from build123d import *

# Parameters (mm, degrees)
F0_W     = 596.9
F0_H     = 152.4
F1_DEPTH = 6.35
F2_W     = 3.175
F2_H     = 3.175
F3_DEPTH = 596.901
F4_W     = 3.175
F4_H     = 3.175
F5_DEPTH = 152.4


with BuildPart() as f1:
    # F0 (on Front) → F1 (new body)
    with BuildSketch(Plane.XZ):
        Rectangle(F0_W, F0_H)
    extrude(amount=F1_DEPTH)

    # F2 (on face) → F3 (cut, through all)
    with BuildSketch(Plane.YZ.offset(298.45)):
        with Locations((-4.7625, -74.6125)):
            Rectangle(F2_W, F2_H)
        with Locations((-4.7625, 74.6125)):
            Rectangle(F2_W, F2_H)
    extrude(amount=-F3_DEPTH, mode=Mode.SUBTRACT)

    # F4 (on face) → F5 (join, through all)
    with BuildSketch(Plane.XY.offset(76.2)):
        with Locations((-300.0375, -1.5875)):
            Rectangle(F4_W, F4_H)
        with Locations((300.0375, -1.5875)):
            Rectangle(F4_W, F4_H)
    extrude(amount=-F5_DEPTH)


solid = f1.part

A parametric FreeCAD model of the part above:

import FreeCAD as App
import Part
import Sketcher
Q = App.Units.Quantity


def add_polygon(sketch, points):
    """Adds a closed chain of lines whose ends are joined by coincident constraints."""
    first, n = sketch.GeometryCount, len(points)
    for a, b in zip(points, points[1:] + points[:1]):
        sketch.addGeometry(Part.LineSegment(App.Vector(*a, 0), App.Vector(*b, 0)), False)
    for i in range(n):
        sketch.addConstraint(Sketcher.Constraint("Coincident", first + i, 2, first + (i + 1) % n, 1))

doc = App.newDocument("Part")
body = doc.addObject("PartDesign::Body", "Body")

# Sketch on XZ plane
sketch1 = body.newObject("Sketcher::SketchObject", "Sketch")
sketch1.AttachmentSupport = (doc.getObject("XZ_Plane"), [""])
sketch1.MapMode = "FlatFace"
add_polygon(sketch1, [(-298, 76), (-298, -76), (298, -76), (298, 76)])  # lines 0-3
sketch1.addConstraint(Sketcher.Constraint("Vertical", 0))
sketch1.addConstraint(Sketcher.Constraint("Horizontal", 1))
sketch1.addConstraint(Sketcher.Constraint("Vertical", 2))
sketch1.addConstraint(Sketcher.Constraint("Horizontal", 3))
sketch1.addConstraint(Sketcher.Constraint("Symmetric", 0, 2, 2, 2, -1, 1))
sketch1.addConstraint(Sketcher.Constraint("DistanceY", 0, 2, 0, 1, Q("6 in")))
sketch1.addConstraint(Sketcher.Constraint("DistanceX", 1, 1, 1, 2, Q("23.5 in")))
pad1 = body.newObject("PartDesign::Pad", "Pad")
pad1.Profile = sketch1
pad1.Length = Q("0.25 in")

# Sketch on YZ plane
sketch2 = body.newObject("Sketcher::SketchObject", "Sketch001")
sketch2.AttachmentSupport = (doc.getObject("YZ_Plane"), [""])
sketch2.MapMode = "FlatFace"
sketch2.AttachmentOffset = App.Placement(App.Vector(0, 0, 11.75 * 25.4), App.Rotation())
add_polygon(sketch2, [(-6.3, -73), (-6.3, -76.2), (-3.2, -76.2), (-3.2, -73)])  # lines 0-3
add_polygon(sketch2, [(-6.3, 76.2), (-6.3, 73), (-3.2, 73), (-3.2, 76.2)])  # lines 4-7
sketch2.addConstraint(Sketcher.Constraint("Vertical", 0))
sketch2.addConstraint(Sketcher.Constraint("Horizontal", 1))
sketch2.addConstraint(Sketcher.Constraint("Vertical", 2))
sketch2.addConstraint(Sketcher.Constraint("Horizontal", 3))
sketch2.addConstraint(Sketcher.Constraint("Vertical", 4))
sketch2.addConstraint(Sketcher.Constraint("Horizontal", 5))
sketch2.addConstraint(Sketcher.Constraint("Vertical", 6))
sketch2.addConstraint(Sketcher.Constraint("Horizontal", 7))
sketch2.addConstraint(Sketcher.Constraint("Symmetric", 3, 2, 4, 2, -1))
sketch2.addConstraint(Sketcher.Constraint("Symmetric", 1, 2, 6, 2, -1))
sketch2.addConstraint(Sketcher.Constraint("Equal", 7, 0))
sketch2.addConstraint(Sketcher.Constraint("DistanceY", 0, 2, -1, 1, Q("3 in")))
sketch2.addConstraint(Sketcher.Constraint("DistanceX", 1, 1, 1, 2, Q("0.125 in")))
sketch2.addConstraint(Sketcher.Constraint("DistanceX", 0, 2, -1, 1, Q("0.25 in")))
pocket1 = body.newObject("PartDesign::Pocket", "Pocket")
pocket1.Profile = sketch2
pocket1.Type = "ThroughAll"

# Sketch on XY plane
sketch3 = body.newObject("Sketcher::SketchObject", "Sketch002")
sketch3.AttachmentSupport = (doc.getObject("XY_Plane"), [""])
sketch3.MapMode = "FlatFace"
sketch3.AttachmentOffset = App.Placement(App.Vector(0, 0, 3 * 25.4), App.Rotation())
add_polygon(sketch3, [(-301.6, 0), (-301.6, -3.2), (-298.4, -3.2), (-298.4, 0)])  # lines 0-3
add_polygon(sketch3, [(298.4, 0), (298.4, -3.2), (301.6, -3.2), (301.6, 0)])  # lines 4-7
sketch3.addConstraint(Sketcher.Constraint("Vertical", 0))
sketch3.addConstraint(Sketcher.Constraint("Horizontal", 1))
sketch3.addConstraint(Sketcher.Constraint("Vertical", 2))
sketch3.addConstraint(Sketcher.Constraint("Horizontal", 3))
sketch3.addConstraint(Sketcher.Constraint("Vertical", 4))
sketch3.addConstraint(Sketcher.Constraint("Horizontal", 5))
sketch3.addConstraint(Sketcher.Constraint("Vertical", 6))
sketch3.addConstraint(Sketcher.Constraint("Horizontal", 7))
sketch3.addConstraint(Sketcher.Constraint("Symmetric", 3, 2, 6, 2, -1, 1))
sketch3.addConstraint(Sketcher.Constraint("Symmetric", 1, 2, 4, 2, -2))
sketch3.addConstraint(Sketcher.Constraint("PointOnObject", 2, 2, -1))
sketch3.addConstraint(Sketcher.Constraint("Equal", 7, 0))
sketch3.addConstraint(Sketcher.Constraint("DistanceX", 1, 2, 4, 2, Q("23.5 in")))
sketch3.addConstraint(Sketcher.Constraint("DistanceX", 1, 1, 1, 2, Q("0.125 in")))
pad2 = body.newObject("PartDesign::Pad", "Pad001")
pad2.Profile = sketch3
pad2.Type = "UpToLast"
pad2.Reversed = True

doc.recompute()
